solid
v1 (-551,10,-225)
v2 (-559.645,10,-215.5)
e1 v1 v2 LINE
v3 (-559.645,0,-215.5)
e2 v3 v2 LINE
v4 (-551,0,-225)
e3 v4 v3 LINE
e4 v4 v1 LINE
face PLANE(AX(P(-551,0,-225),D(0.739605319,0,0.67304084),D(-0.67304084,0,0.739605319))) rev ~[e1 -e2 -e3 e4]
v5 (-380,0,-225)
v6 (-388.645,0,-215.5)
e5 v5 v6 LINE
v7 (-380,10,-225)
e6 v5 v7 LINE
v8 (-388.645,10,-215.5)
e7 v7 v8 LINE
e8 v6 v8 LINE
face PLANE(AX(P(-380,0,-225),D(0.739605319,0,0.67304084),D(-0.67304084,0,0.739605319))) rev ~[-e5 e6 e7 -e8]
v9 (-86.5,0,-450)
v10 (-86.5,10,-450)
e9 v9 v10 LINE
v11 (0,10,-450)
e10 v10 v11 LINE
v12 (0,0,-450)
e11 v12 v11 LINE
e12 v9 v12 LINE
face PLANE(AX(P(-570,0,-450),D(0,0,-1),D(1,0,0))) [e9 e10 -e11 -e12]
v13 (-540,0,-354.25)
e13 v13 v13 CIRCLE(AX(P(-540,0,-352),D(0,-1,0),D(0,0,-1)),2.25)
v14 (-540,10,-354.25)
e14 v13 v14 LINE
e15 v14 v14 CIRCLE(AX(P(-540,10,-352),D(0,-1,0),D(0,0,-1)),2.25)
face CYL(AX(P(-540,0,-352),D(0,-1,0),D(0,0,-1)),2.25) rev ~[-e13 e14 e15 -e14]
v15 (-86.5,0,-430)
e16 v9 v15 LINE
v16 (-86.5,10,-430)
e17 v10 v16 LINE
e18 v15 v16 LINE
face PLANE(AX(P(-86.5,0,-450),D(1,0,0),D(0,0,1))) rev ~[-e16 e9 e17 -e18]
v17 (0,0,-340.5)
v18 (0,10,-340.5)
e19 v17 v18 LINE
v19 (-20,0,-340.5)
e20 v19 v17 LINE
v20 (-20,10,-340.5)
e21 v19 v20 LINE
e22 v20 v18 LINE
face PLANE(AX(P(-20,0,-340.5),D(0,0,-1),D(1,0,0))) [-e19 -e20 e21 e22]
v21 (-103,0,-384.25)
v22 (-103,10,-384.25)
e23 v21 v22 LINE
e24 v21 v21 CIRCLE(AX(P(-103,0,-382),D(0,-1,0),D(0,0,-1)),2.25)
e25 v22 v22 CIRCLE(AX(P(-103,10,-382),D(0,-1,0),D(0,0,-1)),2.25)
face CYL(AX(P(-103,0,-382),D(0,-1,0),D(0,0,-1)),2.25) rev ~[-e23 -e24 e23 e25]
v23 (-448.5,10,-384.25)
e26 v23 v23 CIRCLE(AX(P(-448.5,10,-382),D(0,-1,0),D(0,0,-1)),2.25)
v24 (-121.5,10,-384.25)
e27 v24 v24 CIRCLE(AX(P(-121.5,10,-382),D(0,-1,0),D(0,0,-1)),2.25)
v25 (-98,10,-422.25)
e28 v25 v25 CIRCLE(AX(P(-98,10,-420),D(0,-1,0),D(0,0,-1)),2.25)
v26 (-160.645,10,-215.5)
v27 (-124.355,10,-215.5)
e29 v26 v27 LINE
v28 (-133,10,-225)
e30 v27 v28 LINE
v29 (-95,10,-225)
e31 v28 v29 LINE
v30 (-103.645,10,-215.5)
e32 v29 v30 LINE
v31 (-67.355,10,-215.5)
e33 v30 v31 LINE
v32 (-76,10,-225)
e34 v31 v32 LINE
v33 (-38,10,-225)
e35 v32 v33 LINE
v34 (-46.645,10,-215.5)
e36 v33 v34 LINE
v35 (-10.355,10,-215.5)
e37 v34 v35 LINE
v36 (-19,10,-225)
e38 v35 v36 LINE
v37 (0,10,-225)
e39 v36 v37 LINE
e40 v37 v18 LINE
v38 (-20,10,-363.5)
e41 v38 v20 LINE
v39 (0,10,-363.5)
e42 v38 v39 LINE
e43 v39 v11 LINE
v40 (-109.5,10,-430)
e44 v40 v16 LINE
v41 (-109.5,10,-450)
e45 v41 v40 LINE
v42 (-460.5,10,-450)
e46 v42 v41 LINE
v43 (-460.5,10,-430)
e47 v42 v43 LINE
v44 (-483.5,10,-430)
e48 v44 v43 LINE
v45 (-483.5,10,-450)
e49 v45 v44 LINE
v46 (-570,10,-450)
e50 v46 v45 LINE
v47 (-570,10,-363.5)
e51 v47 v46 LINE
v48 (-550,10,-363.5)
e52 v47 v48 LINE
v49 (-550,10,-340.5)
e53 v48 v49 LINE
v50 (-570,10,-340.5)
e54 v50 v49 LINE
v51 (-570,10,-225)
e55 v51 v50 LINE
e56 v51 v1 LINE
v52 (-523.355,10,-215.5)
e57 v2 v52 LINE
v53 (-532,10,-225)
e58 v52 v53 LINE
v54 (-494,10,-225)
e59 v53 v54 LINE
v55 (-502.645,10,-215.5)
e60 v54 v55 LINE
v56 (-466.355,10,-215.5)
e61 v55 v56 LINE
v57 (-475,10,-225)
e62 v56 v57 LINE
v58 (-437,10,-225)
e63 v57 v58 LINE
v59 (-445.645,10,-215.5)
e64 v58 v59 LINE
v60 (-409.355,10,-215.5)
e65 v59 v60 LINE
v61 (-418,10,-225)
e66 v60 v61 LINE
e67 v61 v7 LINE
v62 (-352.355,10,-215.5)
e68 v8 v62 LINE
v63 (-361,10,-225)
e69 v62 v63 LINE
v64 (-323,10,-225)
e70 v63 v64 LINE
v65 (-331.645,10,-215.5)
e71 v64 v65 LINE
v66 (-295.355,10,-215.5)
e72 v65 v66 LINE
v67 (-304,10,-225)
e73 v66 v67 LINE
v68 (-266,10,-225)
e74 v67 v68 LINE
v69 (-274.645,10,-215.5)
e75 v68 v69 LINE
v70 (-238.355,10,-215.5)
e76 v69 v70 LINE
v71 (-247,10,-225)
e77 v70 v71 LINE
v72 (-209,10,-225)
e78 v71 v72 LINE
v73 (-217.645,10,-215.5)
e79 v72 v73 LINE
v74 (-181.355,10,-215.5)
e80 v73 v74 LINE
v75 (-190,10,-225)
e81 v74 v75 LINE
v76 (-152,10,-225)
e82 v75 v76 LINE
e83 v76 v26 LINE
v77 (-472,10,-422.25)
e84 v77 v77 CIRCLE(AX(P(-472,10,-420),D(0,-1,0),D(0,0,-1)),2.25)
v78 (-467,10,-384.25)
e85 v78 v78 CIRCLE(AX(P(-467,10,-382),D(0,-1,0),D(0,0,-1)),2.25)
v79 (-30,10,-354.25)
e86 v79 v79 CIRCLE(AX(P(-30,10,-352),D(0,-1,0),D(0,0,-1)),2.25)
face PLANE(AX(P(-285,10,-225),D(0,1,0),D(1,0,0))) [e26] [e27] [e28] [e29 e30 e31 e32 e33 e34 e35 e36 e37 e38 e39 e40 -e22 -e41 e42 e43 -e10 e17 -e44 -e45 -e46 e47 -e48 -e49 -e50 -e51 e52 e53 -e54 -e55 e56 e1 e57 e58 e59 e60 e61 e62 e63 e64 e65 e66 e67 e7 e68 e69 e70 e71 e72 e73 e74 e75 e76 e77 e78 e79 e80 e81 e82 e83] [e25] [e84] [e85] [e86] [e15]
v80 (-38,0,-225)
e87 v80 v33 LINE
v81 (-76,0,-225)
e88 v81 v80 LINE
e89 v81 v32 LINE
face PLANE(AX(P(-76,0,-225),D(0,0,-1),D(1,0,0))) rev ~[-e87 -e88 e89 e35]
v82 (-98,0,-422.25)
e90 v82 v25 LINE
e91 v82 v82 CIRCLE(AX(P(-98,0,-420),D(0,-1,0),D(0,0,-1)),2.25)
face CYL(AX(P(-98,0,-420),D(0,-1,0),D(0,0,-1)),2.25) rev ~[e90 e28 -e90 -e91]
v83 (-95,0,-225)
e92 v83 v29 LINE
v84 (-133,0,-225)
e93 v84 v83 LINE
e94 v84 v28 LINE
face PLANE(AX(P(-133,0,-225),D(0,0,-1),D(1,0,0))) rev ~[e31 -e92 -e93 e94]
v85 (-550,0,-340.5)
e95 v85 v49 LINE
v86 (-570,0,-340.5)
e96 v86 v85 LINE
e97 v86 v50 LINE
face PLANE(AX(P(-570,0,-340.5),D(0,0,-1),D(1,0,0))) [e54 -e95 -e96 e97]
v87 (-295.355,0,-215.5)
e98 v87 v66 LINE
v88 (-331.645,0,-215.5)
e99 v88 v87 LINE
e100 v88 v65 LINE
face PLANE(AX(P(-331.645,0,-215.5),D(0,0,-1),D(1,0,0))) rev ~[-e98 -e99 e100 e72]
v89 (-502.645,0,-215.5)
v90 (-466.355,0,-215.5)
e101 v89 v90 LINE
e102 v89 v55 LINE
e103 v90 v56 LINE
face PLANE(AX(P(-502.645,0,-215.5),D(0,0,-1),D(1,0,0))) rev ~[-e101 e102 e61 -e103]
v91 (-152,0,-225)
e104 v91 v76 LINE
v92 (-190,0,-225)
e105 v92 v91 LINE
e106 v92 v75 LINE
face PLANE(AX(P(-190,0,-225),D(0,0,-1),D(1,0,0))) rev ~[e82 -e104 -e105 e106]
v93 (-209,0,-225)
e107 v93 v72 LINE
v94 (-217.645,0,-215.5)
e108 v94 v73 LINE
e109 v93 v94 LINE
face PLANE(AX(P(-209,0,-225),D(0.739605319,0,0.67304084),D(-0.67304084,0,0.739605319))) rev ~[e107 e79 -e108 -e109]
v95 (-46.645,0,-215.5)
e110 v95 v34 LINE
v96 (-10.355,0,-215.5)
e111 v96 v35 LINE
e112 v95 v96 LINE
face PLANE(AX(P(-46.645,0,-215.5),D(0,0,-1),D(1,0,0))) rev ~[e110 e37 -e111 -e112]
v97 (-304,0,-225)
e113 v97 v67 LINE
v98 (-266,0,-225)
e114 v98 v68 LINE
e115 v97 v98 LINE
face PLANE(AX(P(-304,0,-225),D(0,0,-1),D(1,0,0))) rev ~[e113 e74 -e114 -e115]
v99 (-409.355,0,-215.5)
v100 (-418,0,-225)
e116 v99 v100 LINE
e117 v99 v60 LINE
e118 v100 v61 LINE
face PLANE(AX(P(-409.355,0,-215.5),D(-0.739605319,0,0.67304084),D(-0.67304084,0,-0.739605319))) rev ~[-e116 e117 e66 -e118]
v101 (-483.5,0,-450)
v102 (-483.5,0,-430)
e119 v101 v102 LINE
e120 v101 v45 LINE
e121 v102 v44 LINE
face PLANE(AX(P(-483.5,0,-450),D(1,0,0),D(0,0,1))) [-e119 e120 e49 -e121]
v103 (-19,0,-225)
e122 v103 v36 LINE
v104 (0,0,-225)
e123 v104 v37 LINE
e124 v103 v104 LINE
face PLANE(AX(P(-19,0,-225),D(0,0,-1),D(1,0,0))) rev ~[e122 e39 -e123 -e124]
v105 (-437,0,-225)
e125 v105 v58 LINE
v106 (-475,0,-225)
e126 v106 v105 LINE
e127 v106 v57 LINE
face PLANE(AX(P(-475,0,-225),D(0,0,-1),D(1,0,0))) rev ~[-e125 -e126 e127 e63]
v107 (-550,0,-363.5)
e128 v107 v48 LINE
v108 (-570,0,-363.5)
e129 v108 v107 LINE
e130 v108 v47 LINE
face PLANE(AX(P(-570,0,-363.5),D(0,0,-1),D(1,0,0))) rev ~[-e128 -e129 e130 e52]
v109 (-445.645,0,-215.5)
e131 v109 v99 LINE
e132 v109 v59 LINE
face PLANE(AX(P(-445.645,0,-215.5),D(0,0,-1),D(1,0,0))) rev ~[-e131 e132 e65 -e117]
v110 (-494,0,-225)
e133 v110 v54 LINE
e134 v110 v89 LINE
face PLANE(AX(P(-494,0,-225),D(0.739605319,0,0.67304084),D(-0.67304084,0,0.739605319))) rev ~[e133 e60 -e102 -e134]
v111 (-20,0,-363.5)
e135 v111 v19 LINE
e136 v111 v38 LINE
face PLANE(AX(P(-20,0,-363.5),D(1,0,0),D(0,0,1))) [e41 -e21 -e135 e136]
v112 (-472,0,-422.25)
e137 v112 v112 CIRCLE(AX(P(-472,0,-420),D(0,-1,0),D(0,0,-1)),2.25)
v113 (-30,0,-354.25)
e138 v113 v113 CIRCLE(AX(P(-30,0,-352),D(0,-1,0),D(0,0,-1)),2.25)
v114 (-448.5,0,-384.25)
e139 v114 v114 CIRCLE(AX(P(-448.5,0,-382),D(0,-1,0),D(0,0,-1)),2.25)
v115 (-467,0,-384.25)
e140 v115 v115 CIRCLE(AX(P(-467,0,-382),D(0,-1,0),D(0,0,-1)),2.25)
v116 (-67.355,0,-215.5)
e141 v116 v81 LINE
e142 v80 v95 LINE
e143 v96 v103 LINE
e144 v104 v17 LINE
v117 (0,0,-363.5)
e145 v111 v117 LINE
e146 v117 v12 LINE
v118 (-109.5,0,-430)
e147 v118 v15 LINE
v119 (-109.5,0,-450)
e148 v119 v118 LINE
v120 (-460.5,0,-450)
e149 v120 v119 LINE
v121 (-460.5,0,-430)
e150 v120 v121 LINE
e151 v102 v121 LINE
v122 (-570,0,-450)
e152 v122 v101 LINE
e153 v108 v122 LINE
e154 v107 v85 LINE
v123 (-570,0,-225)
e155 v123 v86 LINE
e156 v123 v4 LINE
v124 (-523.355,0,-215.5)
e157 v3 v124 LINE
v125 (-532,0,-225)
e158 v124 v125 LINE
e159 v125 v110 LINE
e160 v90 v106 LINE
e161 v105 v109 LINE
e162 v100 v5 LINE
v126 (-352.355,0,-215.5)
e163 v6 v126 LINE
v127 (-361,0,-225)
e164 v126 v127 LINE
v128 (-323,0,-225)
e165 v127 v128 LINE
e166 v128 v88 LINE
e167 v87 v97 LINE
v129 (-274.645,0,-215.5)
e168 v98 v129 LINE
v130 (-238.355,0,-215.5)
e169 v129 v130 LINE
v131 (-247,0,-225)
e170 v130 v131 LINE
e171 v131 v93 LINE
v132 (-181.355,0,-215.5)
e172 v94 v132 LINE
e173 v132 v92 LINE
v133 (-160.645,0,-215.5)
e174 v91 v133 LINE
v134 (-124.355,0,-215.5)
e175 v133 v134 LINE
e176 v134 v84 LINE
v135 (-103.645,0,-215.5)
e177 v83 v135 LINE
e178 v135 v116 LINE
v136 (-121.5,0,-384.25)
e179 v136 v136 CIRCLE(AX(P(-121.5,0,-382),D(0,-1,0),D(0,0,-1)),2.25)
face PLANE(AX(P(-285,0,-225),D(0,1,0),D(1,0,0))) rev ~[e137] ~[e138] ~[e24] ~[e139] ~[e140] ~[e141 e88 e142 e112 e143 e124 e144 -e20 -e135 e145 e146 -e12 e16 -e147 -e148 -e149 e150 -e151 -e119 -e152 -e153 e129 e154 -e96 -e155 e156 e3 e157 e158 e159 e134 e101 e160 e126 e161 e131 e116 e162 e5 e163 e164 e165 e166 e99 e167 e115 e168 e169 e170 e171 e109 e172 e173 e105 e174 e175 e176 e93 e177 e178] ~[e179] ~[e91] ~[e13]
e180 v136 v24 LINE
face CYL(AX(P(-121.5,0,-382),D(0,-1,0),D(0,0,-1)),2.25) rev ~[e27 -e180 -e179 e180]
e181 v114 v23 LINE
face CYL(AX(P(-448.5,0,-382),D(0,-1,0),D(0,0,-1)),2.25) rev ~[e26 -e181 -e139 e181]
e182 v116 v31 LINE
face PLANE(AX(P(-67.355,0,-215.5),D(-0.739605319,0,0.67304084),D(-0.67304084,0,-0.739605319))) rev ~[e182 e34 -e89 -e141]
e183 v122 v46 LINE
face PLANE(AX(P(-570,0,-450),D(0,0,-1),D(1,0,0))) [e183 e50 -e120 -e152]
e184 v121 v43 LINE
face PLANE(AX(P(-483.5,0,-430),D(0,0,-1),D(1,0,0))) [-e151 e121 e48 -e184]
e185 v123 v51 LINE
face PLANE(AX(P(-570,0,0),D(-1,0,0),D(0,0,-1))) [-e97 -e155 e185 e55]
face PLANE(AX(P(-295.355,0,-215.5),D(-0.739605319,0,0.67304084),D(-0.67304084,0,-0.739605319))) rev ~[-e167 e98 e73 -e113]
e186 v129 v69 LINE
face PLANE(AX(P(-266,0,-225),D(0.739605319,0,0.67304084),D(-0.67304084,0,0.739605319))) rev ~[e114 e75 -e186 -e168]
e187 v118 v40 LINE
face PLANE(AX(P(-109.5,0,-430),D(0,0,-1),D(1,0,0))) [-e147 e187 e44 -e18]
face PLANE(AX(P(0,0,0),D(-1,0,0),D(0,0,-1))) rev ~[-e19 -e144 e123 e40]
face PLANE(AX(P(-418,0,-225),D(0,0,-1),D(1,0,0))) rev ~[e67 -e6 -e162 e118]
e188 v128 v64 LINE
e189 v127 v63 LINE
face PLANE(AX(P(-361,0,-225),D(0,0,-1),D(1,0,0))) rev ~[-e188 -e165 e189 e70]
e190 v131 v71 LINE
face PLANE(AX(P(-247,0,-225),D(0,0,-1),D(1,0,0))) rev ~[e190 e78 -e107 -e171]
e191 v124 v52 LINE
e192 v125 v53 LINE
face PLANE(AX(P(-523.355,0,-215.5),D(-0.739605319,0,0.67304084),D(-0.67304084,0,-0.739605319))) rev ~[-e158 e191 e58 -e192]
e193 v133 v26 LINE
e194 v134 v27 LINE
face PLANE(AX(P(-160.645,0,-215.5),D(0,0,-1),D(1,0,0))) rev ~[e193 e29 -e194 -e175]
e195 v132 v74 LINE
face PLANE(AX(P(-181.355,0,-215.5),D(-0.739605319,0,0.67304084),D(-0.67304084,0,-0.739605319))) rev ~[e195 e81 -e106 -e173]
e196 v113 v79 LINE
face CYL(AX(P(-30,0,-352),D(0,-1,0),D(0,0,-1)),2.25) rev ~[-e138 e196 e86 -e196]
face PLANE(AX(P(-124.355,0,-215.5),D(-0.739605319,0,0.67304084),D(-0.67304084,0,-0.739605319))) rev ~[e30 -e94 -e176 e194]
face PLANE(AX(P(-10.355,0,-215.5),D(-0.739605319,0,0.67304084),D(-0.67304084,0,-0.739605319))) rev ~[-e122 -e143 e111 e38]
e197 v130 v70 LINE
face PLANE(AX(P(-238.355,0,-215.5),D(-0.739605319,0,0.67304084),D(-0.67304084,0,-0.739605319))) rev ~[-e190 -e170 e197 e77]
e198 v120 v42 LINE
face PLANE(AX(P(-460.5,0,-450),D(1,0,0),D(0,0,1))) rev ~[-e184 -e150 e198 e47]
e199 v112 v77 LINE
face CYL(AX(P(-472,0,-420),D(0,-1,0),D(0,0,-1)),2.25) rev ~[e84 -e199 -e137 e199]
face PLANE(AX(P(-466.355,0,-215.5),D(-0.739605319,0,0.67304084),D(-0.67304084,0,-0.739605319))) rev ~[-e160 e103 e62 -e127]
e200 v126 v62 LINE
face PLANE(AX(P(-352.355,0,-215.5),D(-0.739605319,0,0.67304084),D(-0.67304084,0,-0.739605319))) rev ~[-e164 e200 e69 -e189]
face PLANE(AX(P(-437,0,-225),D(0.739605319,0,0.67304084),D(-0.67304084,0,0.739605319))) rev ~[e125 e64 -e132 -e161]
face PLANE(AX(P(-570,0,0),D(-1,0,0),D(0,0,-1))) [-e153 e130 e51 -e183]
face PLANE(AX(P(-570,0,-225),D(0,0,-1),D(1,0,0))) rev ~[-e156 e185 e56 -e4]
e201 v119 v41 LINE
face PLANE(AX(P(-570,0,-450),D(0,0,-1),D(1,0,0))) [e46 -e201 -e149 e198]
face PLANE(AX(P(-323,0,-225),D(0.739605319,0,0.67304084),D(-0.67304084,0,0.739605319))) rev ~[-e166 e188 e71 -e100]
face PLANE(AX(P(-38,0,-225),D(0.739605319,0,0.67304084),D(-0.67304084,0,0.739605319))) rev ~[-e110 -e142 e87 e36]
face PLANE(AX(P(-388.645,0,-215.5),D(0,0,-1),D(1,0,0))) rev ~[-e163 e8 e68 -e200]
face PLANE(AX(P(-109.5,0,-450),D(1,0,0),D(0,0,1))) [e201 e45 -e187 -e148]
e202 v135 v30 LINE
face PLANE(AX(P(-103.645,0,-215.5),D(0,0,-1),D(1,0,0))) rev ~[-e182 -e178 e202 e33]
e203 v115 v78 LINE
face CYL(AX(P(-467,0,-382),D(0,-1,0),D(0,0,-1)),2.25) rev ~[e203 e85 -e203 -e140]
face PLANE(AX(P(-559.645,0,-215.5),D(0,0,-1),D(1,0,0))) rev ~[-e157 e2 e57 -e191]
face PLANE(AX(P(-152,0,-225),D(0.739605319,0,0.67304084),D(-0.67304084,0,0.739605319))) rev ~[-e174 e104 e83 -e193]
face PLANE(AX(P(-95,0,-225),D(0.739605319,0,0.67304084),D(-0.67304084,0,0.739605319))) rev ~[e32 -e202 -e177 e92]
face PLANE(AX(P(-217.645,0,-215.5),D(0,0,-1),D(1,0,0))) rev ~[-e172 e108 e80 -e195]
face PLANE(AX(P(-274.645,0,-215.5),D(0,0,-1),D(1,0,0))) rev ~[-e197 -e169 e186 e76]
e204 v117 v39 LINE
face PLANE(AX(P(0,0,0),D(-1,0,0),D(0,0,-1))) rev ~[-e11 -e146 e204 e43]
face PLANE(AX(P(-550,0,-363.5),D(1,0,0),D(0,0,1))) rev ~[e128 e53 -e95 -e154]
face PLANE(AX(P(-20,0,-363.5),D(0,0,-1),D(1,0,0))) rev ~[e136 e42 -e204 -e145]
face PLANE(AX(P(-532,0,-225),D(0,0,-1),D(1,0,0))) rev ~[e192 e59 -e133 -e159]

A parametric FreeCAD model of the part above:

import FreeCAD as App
import Part
import Sketcher
from FreeCAD import Vector
Q = App.Units.Quantity

doc = App.newDocument("Part")
body = doc.addObject("PartDesign::Body", "Body")

# Sketch on XZ plane
sketch1 = body.newObject("Sketcher::SketchObject", "Sketch")
sketch1.AttachmentSupport = (doc.getObject("XZ_Plane"), [""])
sketch1.MapMode = "FlatFace"
sketch1.addGeometry(Part.LineSegment(Vector(-570, -450, 0), Vector(-570, 0, 0)), False)
sketch1.addGeometry(Part.LineSegment(Vector(-570, 0, 0), Vector(0, 0, 0)), False)
sketch1.addGeometry(Part.LineSegment(Vector(0, 0, 0), Vector(0, -450, 0)), False)
sketch1.addGeometry(Part.LineSegment(Vector(0, -450, 0), Vector(-570, -450, 0)), False)
sketch1.addConstraint(Sketcher.Constraint("Coincident", 0, 2, 1, 1))
sketch1.addConstraint(Sketcher.Constraint("Coincident", 1, 2, 2, 1))
sketch1.addConstraint(Sketcher.Constraint("Coincident", 2, 2, 3, 1))
sketch1.addConstraint(Sketcher.Constraint("Coincident", 3, 2, 0, 1))
sketch1.addConstraint(Sketcher.Constraint("Vertical", 0))
sketch1.addConstraint(Sketcher.Constraint("Horizontal", 1))
sketch1.addConstraint(Sketcher.Constraint("Vertical", 2))
sketch1.addConstraint(Sketcher.Constraint("Horizontal", 3))
sketch1.addConstraint(Sketcher.Constraint("Coincident", 1, 2, -1, 1))
sketch1.addConstraint(Sketcher.Constraint("DistanceX", 1, 1, 1, 2, Q("570 mm")))
sketch1.addConstraint(Sketcher.Constraint("DistanceY", 0, 1, 0, 2, Q("450 mm")))
pad1 = body.newObject("PartDesign::Pad", "Pad")
pad1.Profile = sketch1
pad1.Length = 10
pad1.Reversed = True

# Sketch on XZ plane
sketch2 = body.newObject("Sketcher::SketchObject", "Sketch001")
sketch2.AttachmentSupport = (doc.getObject("XZ_Plane"), [""])
sketch2.MapMode = "FlatFace"
sketch2.addGeometry(Part.Circle(Vector(-467, -68, 0), Vector(0, 0, 1), 2.2), False)
sketch2.addGeometry(Part.Circle(Vector(-448.5, -68, 0), Vector(0, 0, 1), 2.2), False)
sketch2.addGeometry(Part.Circle(Vector(-121.5, -68, 0), Vector(0, 0, 1), 2.2), False)
sketch2.addGeometry(Part.Circle(Vector(-103, -68, 0), Vector(0, 0, 1), 2.2), False)
sketch2.addGeometry(Part.Circle(Vector(-467, -382, 0), Vector(0, 0, 1), 2.2), False)
sketch2.addGeometry(Part.Circle(Vector(-448.5, -382, 0), Vector(0, 0, 1), 2.2), False)
sketch2.addGeometry(Part.Circle(Vector(-121.5, -382, 0), Vector(0, 0, 1), 2.2), False)
sketch2.addGeometry(Part.Circle(Vector(-103, -382, 0), Vector(0, 0, 1), 2.2), False)
sketch2.addGeometry(Part.Circle(Vector(-472, -420, 0), Vector(0, 0, 1), 2.2), False)
sketch2.addGeometry(Part.Circle(Vector(-540, -352, 0), Vector(0, 0, 1), 2.2), False)
sketch2.addGeometry(Part.Circle(Vector(-540, -98, 0), Vector(0, 0, 1), 2.2), False)
sketch2.addGeometry(Part.Circle(Vector(-472, -30, 0), Vector(0, 0, 1), 2.2), False)
sketch2.addGeometry(Part.Circle(Vector(-98, -30, 0), Vector(0, 0, 1), 2.2), False)
sketch2.addGeometry(Part.Circle(Vector(-30, -98, 0), Vector(0, 0, 1), 2.2), False)
sketch2.addGeometry(Part.Circle(Vector(-30, -352, 0), Vector(0, 0, 1), 2.2), False)
sketch2.addGeometry(Part.Circle(Vector(-98, -420, 0), Vector(0, 0, 1), 2.2), False)
sketch2.addGeometry(Part.LineSegment(Vector(-483.5, 0, 0), Vector(-483.5, -20, 0)), False)
sketch2.addGeometry(Part.LineSegment(Vector(-483.5, -20, 0), Vector(-460.5, -20, 0)), False)
sketch2.addGeometry(Part.LineSegment(Vector(-460.5, -20, 0), Vector(-460.5, 0, 0)), False)
sketch2.addGeometry(Part.LineSegment(Vector(-460.5, 0, 0), Vector(-483.5, 0, 0)), False)
sketch2.addGeometry(Part.LineSegment(Vector(-109.5, 0, 0), Vector(-109.5, -20, 0)), False)
sketch2.addGeometry(Part.LineSegment(Vector(-109.5, -20, 0), Vector(-86.5, -20, 0)), False)
sketch2.addGeometry(Part.LineSegment(Vector(-86.5, -20, 0), Vector(-86.5, 0, 0)), False)
sketch2.addGeometry(Part.LineSegment(Vector(-86.5, 0, 0), Vector(-109.5, 0, 0)), False)
sketch2.addGeometry(Part.LineSegment(Vector(-20, -86.5, 0), Vector(-20, -109.5, 0)), False)
sketch2.addGeometry(Part.LineSegment(Vector(-20, -109.5, 0), Vector(0, -109.5, 0)), False)
sketch2.addGeometry(Part.LineSegment(Vector(0, -109.5, 0), Vector(0, -86.5, 0)), False)
sketch2.addGeometry(Part.LineSegment(Vector(0, -86.5, 0), Vector(-20, -86.5, 0)), False)
sketch2.addGeometry(Part.LineSegment(Vector(-20, -340.5, 0), Vector(-20, -363.5, 0)), False)
sketch2.addGeometry(Part.LineSegment(Vector(-20, -363.5, 0), Vector(0, -363.5, 0)), False)
sketch2.addGeometry(Part.LineSegment(Vector(0, -363.5, 0), Vector(0, -340.5, 0)), False)
sketch2.addGeometry(Part.LineSegment(Vector(0, -340.5, 0), Vector(-20, -340.5, 0)), False)
sketch2.addGeometry(Part.LineSegment(Vector(-109.5, -430, 0), Vector(-109.5, -450, 0)), False)
sketch2.addGeometry(Part.LineSegment(Vector(-109.5, -450, 0), Vector(-86.5, -450, 0)), False)
sketch2.addGeometry(Part.LineSegment(Vector(-86.5, -450, 0), Vector(-86.5, -430, 0)), False)
sketch2.addGeometry(Part.LineSegment(Vector(-86.5, -430, 0), Vector(-109.5, -430, 0)), False)
sketch2.addGeometry(Part.LineSegment(Vector(-483.5, -430, 0), Vector(-483.5, -450, 0)), False)
sketch2.addGeometry(Part.LineSegment(Vector(-483.5, -450, 0), Vector(-460.5, -450, 0)), False)
sketch2.addGeometry(Part.LineSegment(Vector(-460.5, -450, 0), Vector(-460.5, -430, 0)), False)
sketch2.addGeometry(Part.LineSegment(Vector(-460.5, -430, 0), Vector(-483.5, -430, 0)), False)
sketch2.addGeometry(Part.LineSegment(Vector(-570, -340.5, 0), Vector(-570, -363.5, 0)), False)
sketch2.addGeometry(Part.LineSegment(Vector(-570, -363.5, 0), Vector(-550, -363.5, 0)), False)
sketch2.addGeometry(Part.LineSegment(Vector(-550, -363.5, 0), Vector(-550, -340.5, 0)), False)
sketch2.addGeometry(Part.LineSegment(Vector(-550, -340.5, 0), Vector(-570, -340.5, 0)), False)
sketch2.addGeometry(Part.LineSegment(Vector(-570, -86.5, 0), Vector(-570, -109.5, 0)), False)
sketch2.addGeometry(Part.LineSegment(Vector(-570, -109.5, 0), Vector(-550, -109.5, 0)), False)
sketch2.addGeometry(Part.LineSegment(Vector(-550, -109.5, 0), Vector(-550, -86.5, 0)), False)
sketch2.addGeometry(Part.LineSegment(Vector(-550, -86.5, 0), Vector(-570, -86.5, 0)), False)
sketch2.addConstraint(Sketcher.Constraint("Coincident", 16, 2, 17, 1))
sketch2.addConstraint(Sketcher.Constraint("Coincident", 17, 2, 18, 1))
sketch2.addConstraint(Sketcher.Constraint("Coincident", 18, 2, 19, 1))
sketch2.addConstraint(Sketcher.Constraint("Coincident", 19, 2, 16, 1))
sketch2.addConstraint(Sketcher.Constraint("Coincident", 20, 2, 21, 1))
sketch2.addConstraint(Sketcher.Constraint("Coincident", 21, 2, 22, 1))
sketch2.addConstraint(Sketcher.Constraint("Coincident", 22, 2, 23, 1))
sketch2.addConstraint(Sketcher.Constraint("Coincident", 23, 2, 20, 1))
sketch2.addConstraint(Sketcher.Constraint("Coincident", 24, 2, 25, 1))
sketch2.addConstraint(Sketcher.Constraint("Coincident", 25, 2, 26, 1))
sketch2.addConstraint(Sketcher.Constraint("Coincident", 26, 2, 27, 1))
sketch2.addConstraint(Sketcher.Constraint("Coincident", 27, 2, 24, 1))
sketch2.addConstraint(Sketcher.Constraint("Coincident", 28, 2, 29, 1))
sketch2.addConstraint(Sketcher.Constraint("Coincident", 29, 2, 30, 1))
sketch2.addConstraint(Sketcher.Constraint("Coincident", 30, 2, 31, 1))
sketch2.addConstraint(Sketcher.Constraint("Coincident", 31, 2, 28, 1))
sketch2.addConstraint(Sketcher.Constraint("Coincident", 32, 2, 33, 1))
sketch2.addConstraint(Sketcher.Constraint("Coincident", 33, 2, 34, 1))
sketch2.addConstraint(Sketcher.Constraint("Coincident", 34, 2, 35, 1))
sketch2.addConstraint(Sketcher.Constraint("Coincident", 35, 2, 32, 1))
sketch2.addConstraint(Sketcher.Constraint("Coincident", 36, 2, 37, 1))
sketch2.addConstraint(Sketcher.Constraint("Coincident", 37, 2, 38, 1))
sketch2.addConstraint(Sketcher.Constraint("Coincident", 38, 2, 39, 1))
sketch2.addConstraint(Sketcher.Constraint("Coincident", 39, 2, 36, 1))
sketch2.addConstraint(Sketcher.Constraint("Coincident", 40, 2, 41, 1))
sketch2.addConstraint(Sketcher.Constraint("Coincident", 41, 2, 42, 1))
sketch2.addConstraint(Sketcher.Constraint("Coincident", 42, 2, 43, 1))
sketch2.addConstraint(Sketcher.Constraint("Coincident", 43, 2, 40, 1))
sketch2.addConstraint(Sketcher.Constraint("Coincident", 44, 2, 45, 1))
sketch2.addConstraint(Sketcher.Constraint("Coincident", 45, 2, 46, 1))
sketch2.addConstraint(Sketcher.Constraint("Coincident", 46, 2, 47, 1))
sketch2.addConstraint(Sketcher.Constraint("Coincident", 47, 2, 44, 1))
sketch2.addConstraint(Sketcher.Constraint("Vertical", 16))
sketch2.addConstraint(Sketcher.Constraint("Horizontal", 17))
sketch2.addConstraint(Sketcher.Constraint("Vertical", 18))
sketch2.addConstraint(Sketcher.Constraint("Horizontal", 19))
sketch2.addConstraint(Sketcher.Constraint("Vertical", 20))
sketch2.addConstraint(Sketcher.Constraint("Horizontal", 21))
sketch2.addConstraint(Sketcher.Constraint("Vertical", 22))
sketch2.addConstraint(Sketcher.Constraint("Horizontal", 23))
sketch2.addConstraint(Sketcher.Constraint("Vertical", 24))
sketch2.addConstraint(Sketcher.Constraint("Horizontal", 25))
sketch2.addConstraint(Sketcher.Constraint("Vertical", 26))
sketch2.addConstraint(Sketcher.Constraint("Horizontal", 27))
sketch2.addConstraint(Sketcher.Constraint("Vertical", 28))
sketch2.addConstraint(Sketcher.Constraint("Horizontal", 29))
sketch2.addConstraint(Sketcher.Constraint("Vertical", 30))
sketch2.addConstraint(Sketcher.Constraint("Horizontal", 31))
sketch2.addConstraint(Sketcher.Constraint("Vertical", 32))
sketch2.addConstraint(Sketcher.Constraint("Horizontal", 33))
sketch2.addConstraint(Sketcher.Constraint("Vertical", 34))
sketch2.addConstraint(Sketcher.Constraint("Horizontal", 35))
sketch2.addConstraint(Sketcher.Constraint("Vertical", 36))
sketch2.addConstraint(Sketcher.Constraint("Horizontal", 37))
sketch2.addConstraint(Sketcher.Constraint("Vertical", 38))
sketch2.addConstraint(Sketcher.Constraint("Horizontal", 39))
sketch2.addConstraint(Sketcher.Constraint("Vertical", 40))
sketch2.addConstraint(Sketcher.Constraint("Horizontal", 41))
sketch2.addConstraint(Sketcher.Constraint("Vertical", 42))
sketch2.addConstraint(Sketcher.Constraint("Horizontal", 43))
sketch2.addConstraint(Sketcher.Constraint("Vertical", 44))
sketch2.addConstraint(Sketcher.Constraint("Horizontal", 45))
sketch2.addConstraint(Sketcher.Constraint("Vertical", 46))
sketch2.addConstraint(Sketcher.Constraint("Horizontal", 47))
sketch2.addConstraint(Sketcher.Constraint("Equal", 0, 1))
sketch2.addConstraint(Sketcher.Constraint("Equal", 1, 2))
sketch2.addConstraint(Sketcher.Constraint("Equal", 2, 3))
sketch2.addConstraint(Sketcher.Constraint("Equal", 3, 4))
sketch2.addConstraint(Sketcher.Constraint("Equal", 4, 5))
sketch2.addConstraint(Sketcher.Constraint("Equal", 5, 6))
sketch2.addConstraint(Sketcher.Constraint("Equal", 6, 7))
sketch2.addConstraint(Sketcher.Constraint("Equal", 7, 8))
sketch2.addConstraint(Sketcher.Constraint("Equal", 8, 9))
sketch2.addConstraint(Sketcher.Constraint("Equal", 9, 10))
sketch2.addConstraint(Sketcher.Constraint("Equal", 10, 11))
sketch2.addConstraint(Sketcher.Constraint("Equal", 11, 12))
sketch2.addConstraint(Sketcher.Constraint("Equal", 12, 13))
sketch2.addConstraint(Sketcher.Constraint("Equal", 13, 14))
sketch2.addConstraint(Sketcher.Constraint("Equal", 14, 15))
sketch2.addConstraint(Sketcher.Constraint("PointOnObject", 18, 2, -1))
sketch2.addConstraint(Sketcher.Constraint("PointOnObject", 22, 2, -1))
sketch2.addConstraint(Sketcher.Constraint("PointOnObject", 25, 2, -2))
sketch2.addConstraint(Sketcher.Constraint("PointOnObject", 29, 2, -2))
sketch2.addConstraint(Sketcher.Constraint("Horizontal", 0, 3, 1, 3))
sketch2.addConstraint(Sketcher.Constraint("Horizontal", 1, 3, 2, 3))
sketch2.addConstraint(Sketcher.Constraint("Horizontal", 2, 3, 3, 3))
sketch2.addConstraint(Sketcher.Constraint("Horizontal", 4, 3, 5, 3))
sketch2.addConstraint(Sketcher.Constraint("Horizontal", 5, 3, 6, 3))
sketch2.addConstraint(Sketcher.Constraint("Horizontal", 6, 3, 7, 3))
sketch2.addConstraint(Sketcher.Constraint("Horizontal", 11, 3, 12, 3))
sketch2.addConstraint(Sketcher.Constraint("Horizontal", 10, 3, 13, 3))
sketch2.addConstraint(Sketcher.Constraint("Horizontal", 9, 3, 14, 3))
sketch2.addConstraint(Sketcher.Constraint("Horizontal", 8, 3, 15, 3))
sketch2.addConstraint(Sketcher.Constraint("Horizontal", 17, 2, 20, 2))
sketch2.addConstraint(Sketcher.Constraint("Horizontal", 33, 2, 36, 2))
sketch2.addConstraint(Sketcher.Constraint("Horizontal", 35, 2, 38, 2))
sketch2.addConstraint(Sketcher.Constraint("Horizontal", 29, 2, 40, 2))
sketch2.addConstraint(Sketcher.Constraint("Horizontal", 31, 2, 42, 2))
sketch2.addConstraint(Sketcher.Constraint("Horizontal", 25, 2, 44, 2))
sketch2.addConstraint(Sketcher.Constraint("Horizontal", 27, 2, 46, 2))
sketch2.addConstraint(Sketcher.Constraint("Vertical", 0, 3, 4, 3))
sketch2.addConstraint(Sketcher.Constraint("Vertical", 1, 3, 5, 3))
sketch2.addConstraint(Sketcher.Constraint("Vertical", 2, 3, 6, 3))
sketch2.addConstraint(Sketcher.Constraint("Vertical", 3, 3, 7, 3))
sketch2.addConstraint(Sketcher.Constraint("Vertical", 9, 3, 10, 3))
sketch2.addConstraint(Sketcher.Constraint("Vertical", 8, 3, 11, 3))
sketch2.addConstraint(Sketcher.Constraint("Vertical", 13, 3, 14, 3))
sketch2.addConstraint(Sketcher.Constraint("Vertical", 12, 3, 15, 3))
sketch2.addConstraint(Sketcher.Constraint("Vertical", 27, 2, 28, 2))
sketch2.addConstraint(Sketcher.Constraint("Vertical", 23, 2, 32, 2))
sketch2.addConstraint(Sketcher.Constraint("Vertical", 22, 2, 33, 2))
sketch2.addConstraint(Sketcher.Constraint("Vertical", 19, 2, 36, 2))
sketch2.addConstraint(Sketcher.Constraint("Vertical", 18, 2, 37, 2))
sketch2.addConstraint(Sketcher.Constraint("Vertical", 43, 2, 44, 2))
sketch2.addConstraint(Sketcher.Constraint("Vertical", 42, 2, 45, 2))
sketch2.addConstraint(Sketcher.Constraint("Equal", 19, 21))
sketch2.addConstraint(Sketcher.Constraint("Equal", 31, 41))
sketch2.addConstraint(Sketcher.Constraint("Equal", 47, 16))
sketch2.addConstraint(Sketcher.Constraint("Equal", 39, 24))
sketch2.addConstraint(Sketcher.Constraint("Equal", 26, 28))
sketch2.addConstraint(Sketcher.Constraint("Equal", 22, 32))
sketch2.addConstraint(Sketcher.Constraint("Diameter", 0, Q("4.5 mm")))
sketch2.addConstraint(Sketcher.Constraint("DistanceX", 17, 1, 17, 2, Q("23 mm")))
sketch2.addConstraint(Sketcher.Constraint("DistanceX", 25, 1, 25, 2, Q("20 mm")))
sketch2.addConstraint(Sketcher.Constraint("DistanceX", 0, 3, -1, 1, Q("467 mm")))
sketch2.addConstraint(Sketcher.Constraint("DistanceY", 0, 3, -1, 1, Q("68 mm")))
sketch2.addConstraint(Sketcher.Constraint("DistanceX", 3, 3, -1, 1, Q("103 mm")))
sketch2.addConstraint(Sketcher.Constraint("DistanceY", 4, 3, -1, 1, Q("382 mm")))
sketch2.addConstraint(Sketcher.Constraint("DistanceX", 8, 3, -1, 1, Q("472 mm")))
sketch2.addConstraint(Sketcher.Constraint("DistanceY", 8, 3, -1, 1, Q("420 mm")))
sketch2.addConstraint(Sketcher.Constraint("DistanceX", 9, 3, -1, 1, Q("540 mm")))
sketch2.addConstraint(Sketcher.Constraint("DistanceY", 9, 3, -1, 1, Q("352 mm")))
sketch2.addConstraint(Sketcher.Constraint("DistanceY", 10, 3, -1, 1, Q("98 mm")))
sketch2.addConstraint(Sketcher.Constraint("DistanceY", 11, 3, -1, 1, Q("30 mm")))
sketch2.addConstraint(Sketcher.Constraint("DistanceX", 12, 3, -1, 1, Q("98 mm")))
sketch2.addConstraint(Sketcher.Constraint("DistanceX", 13, 3, -1, 1, Q("30 mm")))
sketch2.addConstraint(Sketcher.Constraint("DistanceY", 32, 2, -1, 1, Q("450 mm")))
sketch2.addConstraint(Sketcher.Constraint("DistanceX", 40, 2, -1, 1, Q("570 mm")))
sketch2.addConstraint(Sketcher.Constraint("DistanceX", 1, 3, 2, 3, Q("327 mm")))
sketch2.addConstraint(Sketcher.Constraint("DistanceX", 16, 2, 1, 3, Q("35 mm")))
sketch2.addConstraint(Sketcher.Constraint("DistanceX", 2, 3, 20, 2, Q("12 mm")))
sketch2.addConstraint(Sketcher.Constraint("DistanceY", 28, 2, 24, 2, Q("254 mm")))
sketch2.addConstraint(Sketcher.Constraint("DistanceX", 1, 3, -1, 1, Q("448.5 mm")))
sketch2.addConstraint(Sketcher.Constraint("DistanceY", 24, 2, -1, 1, Q("109.5 mm")))
pocket1 = body.newObject("PartDesign::Pocket", "Pocket")
pocket1.Profile = sketch2
pocket1.Length = 10

# Sketch on XZ plane
sketch3 = body.newObject("Sketcher::SketchObject", "Sketch002")
sketch3.AttachmentSupport = (doc.getObject("XZ_Plane"), [""])
sketch3.MapMode = "FlatFace"
sketch3.addGeometry(Part.LineSegment(Vector(-570, -225, 0), Vector(-551, -225, 0)), False)
sketch3.addGeometry(Part.LineSegment(Vector(-551, -225, 0), Vector(-560, -216, 0)), False)
sketch3.addGeometry(Part.LineSegment(Vector(-560, -216, 0), Vector(-523, -216, 0)), False)
sketch3.addGeometry(Part.LineSegment(Vector(-523, -216, 0), Vector(-532, -225, 0)), False)
sketch3.addGeometry(Part.LineSegment(Vector(-532, -225, 0), Vector(-494, -225, 0)), False)
sketch3.addGeometry(Part.LineSegment(Vector(-494, -225, 0), Vector(-503, -216, 0)), False)
sketch3.addGeometry(Part.LineSegment(Vector(-503, -216, 0), Vector(-466, -216, 0)), False)
sketch3.addGeometry(Part.LineSegment(Vector(-466, -216, 0), Vector(-475, -225, 0)), False)
sketch3.addGeometry(Part.LineSegment(Vector(-475, -225, 0), Vector(-437, -225, 0)), False)
sketch3.addGeometry(Part.LineSegment(Vector(-437, -225, 0), Vector(-446, -216, 0)), False)
sketch3.addGeometry(Part.LineSegment(Vector(-446, -216, 0), Vector(-409, -216, 0)), False)
sketch3.addGeometry(Part.LineSegment(Vector(-409, -216, 0), Vector(-418, -225, 0)), False)
sketch3.addGeometry(Part.LineSegment(Vector(-418, -225, 0), Vector(-380, -225, 0)), False)
sketch3.addGeometry(Part.LineSegment(Vector(-380, -225, 0), Vector(-389, -216, 0)), False)
sketch3.addGeometry(Part.LineSegment(Vector(-389, -216, 0), Vector(-352, -216, 0)), False)
sketch3.addGeometry(Part.LineSegment(Vector(-352, -216, 0), Vector(-361, -225, 0)), False)
sketch3.addGeometry(Part.LineSegment(Vector(-361, -225, 0), Vector(-323, -225, 0)), False)
sketch3.addGeometry(Part.LineSegment(Vector(-323, -225, 0), Vector(-332, -216, 0)), False)
sketch3.addGeometry(Part.LineSegment(Vector(-332, -216, 0), Vector(-295, -216, 0)), False)
sketch3.addGeometry(Part.LineSegment(Vector(-295, -216, 0), Vector(-304, -225, 0)), False)
sketch3.addGeometry(Part.LineSegment(Vector(-304, -225, 0), Vector(-266, -225, 0)), False)
sketch3.addGeometry(Part.LineSegment(Vector(-266, -225, 0), Vector(-275, -216, 0)), False)
sketch3.addGeometry(Part.LineSegment(Vector(-275, -216, 0), Vector(-238, -216, 0)), False)
sketch3.addGeometry(Part.LineSegment(Vector(-238, -216, 0), Vector(-247, -225, 0)), False)
sketch3.addGeometry(Part.LineSegment(Vector(-247, -225, 0), Vector(-209, -225, 0)), False)
sketch3.addGeometry(Part.LineSegment(Vector(-209, -225, 0), Vector(-218, -216, 0)), False)
sketch3.addGeometry(Part.LineSegment(Vector(-218, -216, 0), Vector(-181, -216, 0)), False)
sketch3.addGeometry(Part.LineSegment(Vector(-181, -216, 0), Vector(-190, -225, 0)), False)
sketch3.addGeometry(Part.LineSegment(Vector(-190, -225, 0), Vector(-152, -225, 0)), False)
sketch3.addGeometry(Part.LineSegment(Vector(-152, -225, 0), Vector(-161, -216, 0)), False)
sketch3.addGeometry(Part.LineSegment(Vector(-161, -216, 0), Vector(-124, -216, 0)), False)
sketch3.addGeometry(Part.LineSegment(Vector(-124, -216, 0), Vector(-133, -225, 0)), False)
sketch3.addGeometry(Part.LineSegment(Vector(-133, -225, 0), Vector(-95, -225, 0)), False)
sketch3.addGeometry(Part.LineSegment(Vector(-95, -225, 0), Vector(-104, -216, 0)), False)
sketch3.addGeometry(Part.LineSegment(Vector(-104, -216, 0), Vector(-67, -216, 0)), False)
sketch3.addGeometry(Part.LineSegment(Vector(-67, -216, 0), Vector(-76, -225, 0)), False)
sketch3.addGeometry(Part.LineSegment(Vector(-76, -225, 0), Vector(-38, -225, 0)), False)
sketch3.addGeometry(Part.LineSegment(Vector(-38, -225, 0), Vector(-47, -216, 0)), False)
sketch3.addGeometry(Part.LineSegment(Vector(-47, -216, 0), Vector(-10, -216, 0)), False)
sketch3.addGeometry(Part.LineSegment(Vector(-10, -216, 0), Vector(-19, -225, 0)), False)
sketch3.addGeometry(Part.LineSegment(Vector(-19, -225, 0), Vector(0, -225, 0)), False)
sketch3.addGeometry(Part.LineSegment(Vector(0, -225, 0), Vector(0, 0, 0)), False)
sketch3.addGeometry(Part.LineSegment(Vector(0, 0, 0), Vector(-570, 0, 0)), False)
sketch3.addGeometry(Part.LineSegment(Vector(-570, 0, 0), Vector(-570, -225, 0)), False)
sketch3.addConstraint(Sketcher.Constraint("Coincident", 0, 2, 1, 1))
sketch3.addConstraint(Sketcher.Constraint("Coincident", 1, 2, 2, 1))
sketch3.addConstraint(Sketcher.Constraint("Coincident", 2, 2, 3, 1))
sketch3.addConstraint(Sketcher.Constraint("Coincident", 3, 2, 4, 1))
sketch3.addConstraint(Sketcher.Constraint("Coincident", 4, 2, 5, 1))
sketch3.addConstraint(Sketcher.Constraint("Coincident", 5, 2, 6, 1))
sketch3.addConstraint(Sketcher.Constraint("Coincident", 6, 2, 7, 1))
sketch3.addConstraint(Sketcher.Constraint("Coincident", 7, 2, 8, 1))
sketch3.addConstraint(Sketcher.Constraint("Coincident", 8, 2, 9, 1))
sketch3.addConstraint(Sketcher.Constraint("Coincident", 9, 2, 10, 1))
sketch3.addConstraint(Sketcher.Constraint("Coincident", 10, 2, 11, 1))
sketch3.addConstraint(Sketcher.Constraint("Coincident", 11, 2, 12, 1))
sketch3.addConstraint(Sketcher.Constraint("Coincident", 12, 2, 13, 1))
sketch3.addConstraint(Sketcher.Constraint("Coincident", 13, 2, 14, 1))
sketch3.addConstraint(Sketcher.Constraint("Coincident", 14, 2, 15, 1))
sketch3.addConstraint(Sketcher.Constraint("Coincident", 15, 2, 16, 1))
sketch3.addConstraint(Sketcher.Constraint("Coincident", 16, 2, 17, 1))
sketch3.addConstraint(Sketcher.Constraint("Coincident", 17, 2, 18, 1))
sketch3.addConstraint(Sketcher.Constraint("Coincident", 18, 2, 19, 1))
sketch3.addConstraint(Sketcher.Constraint("Coincident", 19, 2, 20, 1))
sketch3.addConstraint(Sketcher.Constraint("Coincident", 20, 2, 21, 1))
sketch3.addConstraint(Sketcher.Constraint("Coincident", 21, 2, 22, 1))
sketch3.addConstraint(Sketcher.Constraint("Coincident", 22, 2, 23, 1))
sketch3.addConstraint(Sketcher.Constraint("Coincident", 23, 2, 24, 1))
sketch3.addConstraint(Sketcher.Constraint("Coincident", 24, 2, 25, 1))
sketch3.addConstraint(Sketcher.Constraint("Coincident", 25, 2, 26, 1))
sketch3.addConstraint(Sketcher.Constraint("Coincident", 26, 2, 27, 1))
sketch3.addConstraint(Sketcher.Constraint("Coincident", 27, 2, 28, 1))
sketch3.addConstraint(Sketcher.Constraint("Coincident", 28, 2, 29, 1))
sketch3.addConstraint(Sketcher.Constraint("Coincident", 29, 2, 30, 1))
sketch3.addConstraint(Sketcher.Constraint("Coincident", 30, 2, 31, 1))
sketch3.addConstraint(Sketcher.Constraint("Coincident", 31, 2, 32, 1))
sketch3.addConstraint(Sketcher.Constraint("Coincident", 32, 2, 33, 1))
sketch3.addConstraint(Sketcher.Constraint("Coincident", 33, 2, 34, 1))
sketch3.addConstraint(Sketcher.Constraint("Coincident", 34, 2, 35, 1))
sketch3.addConstraint(Sketcher.Constraint("Coincident", 35, 2, 36, 1))
sketch3.addConstraint(Sketcher.Constraint("Coincident", 36, 2, 37, 1))
sketch3.addConstraint(Sketcher.Constraint("Coincident", 37, 2, 38, 1))
sketch3.addConstraint(Sketcher.Constraint("Coincident", 38, 2, 39, 1))
sketch3.addConstraint(Sketcher.Constraint("Coincident", 39, 2, 40, 1))
sketch3.addConstraint(Sketcher.Constraint("Coincident", 40, 2, 41, 1))
sketch3.addConstraint(Sketcher.Constraint("Coincident", 41, 2, 42, 1))
sketch3.addConstraint(Sketcher.Constraint("Coincident", 42, 2, 43, 1))
sketch3.addConstraint(Sketcher.Constraint("Coincident", 43, 2, 0, 1))
sketch3.addConstraint(Sketcher.Constraint("Horizontal", 0))
sketch3.addConstraint(Sketcher.Constraint("Horizontal", 2))
sketch3.addConstraint(Sketcher.Constraint("Horizontal", 4))
sketch3.addConstraint(Sketcher.Constraint("Horizontal", 6))
sketch3.addConstraint(Sketcher.Constraint("Horizontal", 8))
sketch3.addConstraint(Sketcher.Constraint("Horizontal", 10))
sketch3.addConstraint(Sketcher.Constraint("Horizontal", 12))
sketch3.addConstraint(Sketcher.Constraint("Horizontal", 14))
sketch3.addConstraint(Sketcher.Constraint("Horizontal", 16))
sketch3.addConstraint(Sketcher.Constraint("Horizontal", 18))
sketch3.addConstraint(Sketcher.Constraint("Horizontal", 20))
sketch3.addConstraint(Sketcher.Constraint("Horizontal", 22))
sketch3.addConstraint(Sketcher.Constraint("Horizontal", 24))
sketch3.addConstraint(Sketcher.Constraint("Horizontal", 26))
sketch3.addConstraint(Sketcher.Constraint("Horizontal", 28))
sketch3.addConstraint(Sketcher.Constraint("Horizontal", 30))
sketch3.addConstraint(Sketcher.Constraint("Horizontal", 32))
sketch3.addConstraint(Sketcher.Constraint("Horizontal", 34))
sketch3.addConstraint(Sketcher.Constraint("Horizontal", 36))
sketch3.addConstraint(Sketcher.Constraint("Horizontal", 38))
sketch3.addConstraint(Sketcher.Constraint("Horizontal", 40))
sketch3.addConstraint(Sketcher.Constraint("Vertical", 41))
sketch3.addConstraint(Sketcher.Constraint("Horizontal", 42))
sketch3.addConstraint(Sketcher.Constraint("Vertical", 43))
sketch3.addConstraint(Sketcher.Constraint("Coincident", 41, 2, -1, 1))
sketch3.addConstraint(Sketcher.Constraint("Parallel", 1, 5))
sketch3.addConstraint(Sketcher.Constraint("Parallel", 3, 7))
sketch3.addConstraint(Sketcher.Constraint("Parallel", 5, 9))
sketch3.addConstraint(Sketcher.Constraint("Parallel", 7, 11))
sketch3.addConstraint(Sketcher.Constraint("Parallel", 9, 13))
sketch3.addConstraint(Sketcher.Constraint("Parallel", 11, 15))
sketch3.addConstraint(Sketcher.Constraint("Parallel", 13, 17))
sketch3.addConstraint(Sketcher.Constraint("Parallel", 15, 19))
sketch3.addConstraint(Sketcher.Constraint("Parallel", 17, 21))
sketch3.addConstraint(Sketcher.Constraint("Parallel", 19, 23))
sketch3.addConstraint(Sketcher.Constraint("Parallel", 21, 25))
sketch3.addConstraint(Sketcher.Constraint("Parallel", 23, 27))
sketch3.addConstraint(Sketcher.Constraint("Parallel", 25, 29))
sketch3.addConstraint(Sketcher.Constraint("Parallel", 27, 31))
sketch3.addConstraint(Sketcher.Constraint("Parallel", 29, 33))
sketch3.addConstraint(Sketcher.Constraint("Parallel", 31, 35))
sketch3.addConstraint(Sketcher.Constraint("Parallel", 33, 37))
sketch3.addConstraint(Sketcher.Constraint("Parallel", 35, 39))
sketch3.addConstraint(Sketcher.Constraint("Horizontal", 0, 2, 3, 2))
sketch3.addConstraint(Sketcher.Constraint("Horizontal", 2, 2, 5, 2))
sketch3.addConstraint(Sketcher.Constraint("Horizontal", 4, 2, 7, 2))
sketch3.addConstraint(Sketcher.Constraint("Horizontal", 6, 2, 9, 2))
sketch3.addConstraint(Sketcher.Constraint("Horizontal", 8, 2, 11, 2))
sketch3.addConstraint(Sketcher.Constraint("Horizontal", 10, 2, 13, 2))
sketch3.addConstraint(Sketcher.Constraint("Horizontal", 12, 2, 15, 2))
sketch3.addConstraint(Sketcher.Constraint("Horizontal", 14, 2, 17, 2))
sketch3.addConstraint(Sketcher.Constraint("Horizontal", 16, 2, 19, 2))
sketch3.addConstraint(Sketcher.Constraint("Horizontal", 18, 2, 21, 2))
sketch3.addConstraint(Sketcher.Constraint("Horizontal", 20, 2, 23, 2))
sketch3.addConstraint(Sketcher.Constraint("Horizontal", 22, 2, 25, 2))
sketch3.addConstraint(Sketcher.Constraint("Horizontal", 24, 2, 27, 2))
sketch3.addConstraint(Sketcher.Constraint("Horizontal", 26, 2, 29, 2))
sketch3.addConstraint(Sketcher.Constraint("Horizontal", 28, 2, 31, 2))
sketch3.addConstraint(Sketcher.Constraint("Horizontal", 30, 2, 33, 2))
sketch3.addConstraint(Sketcher.Constraint("Horizontal", 32, 2, 35, 2))
sketch3.addConstraint(Sketcher.Constraint("Horizontal", 34, 2, 37, 2))
sketch3.addConstraint(Sketcher.Constraint("Horizontal", 36, 2, 39, 2))
sketch3.addConstraint(Sketcher.Constraint("Equal", 2, 6))
sketch3.addConstraint(Sketcher.Constraint("Equal", 4, 8))
sketch3.addConstraint(Sketcher.Constraint("Equal", 6, 10))
sketch3.addConstraint(Sketcher.Constraint("Equal", 8, 12))
sketch3.addConstraint(Sketcher.Constraint("Equal", 10, 14))
sketch3.addConstraint(Sketcher.Constraint("Equal", 12, 16))
sketch3.addConstraint(Sketcher.Constraint("Equal", 14, 18))
sketch3.addConstraint(Sketcher.Constraint("Equal", 16, 20))
sketch3.addConstraint(Sketcher.Constraint("Equal", 18, 22))
sketch3.addConstraint(Sketcher.Constraint("Equal", 20, 24))
sketch3.addConstraint(Sketcher.Constraint("Equal", 22, 26))
sketch3.addConstraint(Sketcher.Constraint("Equal", 24, 28))
sketch3.addConstraint(Sketcher.Constraint("Equal", 26, 30))
sketch3.addConstraint(Sketcher.Constraint("Equal", 28, 32))
sketch3.addConstraint(Sketcher.Constraint("Equal", 30, 34))
sketch3.addConstraint(Sketcher.Constraint("Equal", 32, 36))
sketch3.addConstraint(Sketcher.Constraint("Equal", 34, 38))
sketch3.addConstraint(Sketcher.Constraint("Equal", 0, 40))
sketch3.addConstraint(Sketcher.Constraint("Equal", 1, 3))
sketch3.addConstraint(Sketcher.Constraint("DistanceX", 0, 1, 0, 2, Q("19 mm")))
sketch3.addConstraint(Sketcher.Constraint("DistanceX", 4, 1, 4, 2, Q("38 mm")))
sketch3.addConstraint(Sketcher.Constraint("DistanceX", 42, 2, 42, 1, Q("570 mm")))
sketch3.addConstraint(Sketcher.Constraint("DistanceY", 41, 1, 41, 2, Q("225 mm")))
sketch3.addConstraint(Sketcher.Constraint("DistanceX", 2, 1, 2, 2, Q("36.29 mm")))
sketch3.addConstraint(Sketcher.Constraint("DistanceY", 1, 2, -1, 1, Q("215.5 mm")))
pocket2 = body.newObject("PartDesign::Pocket", "Pocket001")
pocket2.Profile = sketch3
pocket2.Length = 10

doc.recompute()
